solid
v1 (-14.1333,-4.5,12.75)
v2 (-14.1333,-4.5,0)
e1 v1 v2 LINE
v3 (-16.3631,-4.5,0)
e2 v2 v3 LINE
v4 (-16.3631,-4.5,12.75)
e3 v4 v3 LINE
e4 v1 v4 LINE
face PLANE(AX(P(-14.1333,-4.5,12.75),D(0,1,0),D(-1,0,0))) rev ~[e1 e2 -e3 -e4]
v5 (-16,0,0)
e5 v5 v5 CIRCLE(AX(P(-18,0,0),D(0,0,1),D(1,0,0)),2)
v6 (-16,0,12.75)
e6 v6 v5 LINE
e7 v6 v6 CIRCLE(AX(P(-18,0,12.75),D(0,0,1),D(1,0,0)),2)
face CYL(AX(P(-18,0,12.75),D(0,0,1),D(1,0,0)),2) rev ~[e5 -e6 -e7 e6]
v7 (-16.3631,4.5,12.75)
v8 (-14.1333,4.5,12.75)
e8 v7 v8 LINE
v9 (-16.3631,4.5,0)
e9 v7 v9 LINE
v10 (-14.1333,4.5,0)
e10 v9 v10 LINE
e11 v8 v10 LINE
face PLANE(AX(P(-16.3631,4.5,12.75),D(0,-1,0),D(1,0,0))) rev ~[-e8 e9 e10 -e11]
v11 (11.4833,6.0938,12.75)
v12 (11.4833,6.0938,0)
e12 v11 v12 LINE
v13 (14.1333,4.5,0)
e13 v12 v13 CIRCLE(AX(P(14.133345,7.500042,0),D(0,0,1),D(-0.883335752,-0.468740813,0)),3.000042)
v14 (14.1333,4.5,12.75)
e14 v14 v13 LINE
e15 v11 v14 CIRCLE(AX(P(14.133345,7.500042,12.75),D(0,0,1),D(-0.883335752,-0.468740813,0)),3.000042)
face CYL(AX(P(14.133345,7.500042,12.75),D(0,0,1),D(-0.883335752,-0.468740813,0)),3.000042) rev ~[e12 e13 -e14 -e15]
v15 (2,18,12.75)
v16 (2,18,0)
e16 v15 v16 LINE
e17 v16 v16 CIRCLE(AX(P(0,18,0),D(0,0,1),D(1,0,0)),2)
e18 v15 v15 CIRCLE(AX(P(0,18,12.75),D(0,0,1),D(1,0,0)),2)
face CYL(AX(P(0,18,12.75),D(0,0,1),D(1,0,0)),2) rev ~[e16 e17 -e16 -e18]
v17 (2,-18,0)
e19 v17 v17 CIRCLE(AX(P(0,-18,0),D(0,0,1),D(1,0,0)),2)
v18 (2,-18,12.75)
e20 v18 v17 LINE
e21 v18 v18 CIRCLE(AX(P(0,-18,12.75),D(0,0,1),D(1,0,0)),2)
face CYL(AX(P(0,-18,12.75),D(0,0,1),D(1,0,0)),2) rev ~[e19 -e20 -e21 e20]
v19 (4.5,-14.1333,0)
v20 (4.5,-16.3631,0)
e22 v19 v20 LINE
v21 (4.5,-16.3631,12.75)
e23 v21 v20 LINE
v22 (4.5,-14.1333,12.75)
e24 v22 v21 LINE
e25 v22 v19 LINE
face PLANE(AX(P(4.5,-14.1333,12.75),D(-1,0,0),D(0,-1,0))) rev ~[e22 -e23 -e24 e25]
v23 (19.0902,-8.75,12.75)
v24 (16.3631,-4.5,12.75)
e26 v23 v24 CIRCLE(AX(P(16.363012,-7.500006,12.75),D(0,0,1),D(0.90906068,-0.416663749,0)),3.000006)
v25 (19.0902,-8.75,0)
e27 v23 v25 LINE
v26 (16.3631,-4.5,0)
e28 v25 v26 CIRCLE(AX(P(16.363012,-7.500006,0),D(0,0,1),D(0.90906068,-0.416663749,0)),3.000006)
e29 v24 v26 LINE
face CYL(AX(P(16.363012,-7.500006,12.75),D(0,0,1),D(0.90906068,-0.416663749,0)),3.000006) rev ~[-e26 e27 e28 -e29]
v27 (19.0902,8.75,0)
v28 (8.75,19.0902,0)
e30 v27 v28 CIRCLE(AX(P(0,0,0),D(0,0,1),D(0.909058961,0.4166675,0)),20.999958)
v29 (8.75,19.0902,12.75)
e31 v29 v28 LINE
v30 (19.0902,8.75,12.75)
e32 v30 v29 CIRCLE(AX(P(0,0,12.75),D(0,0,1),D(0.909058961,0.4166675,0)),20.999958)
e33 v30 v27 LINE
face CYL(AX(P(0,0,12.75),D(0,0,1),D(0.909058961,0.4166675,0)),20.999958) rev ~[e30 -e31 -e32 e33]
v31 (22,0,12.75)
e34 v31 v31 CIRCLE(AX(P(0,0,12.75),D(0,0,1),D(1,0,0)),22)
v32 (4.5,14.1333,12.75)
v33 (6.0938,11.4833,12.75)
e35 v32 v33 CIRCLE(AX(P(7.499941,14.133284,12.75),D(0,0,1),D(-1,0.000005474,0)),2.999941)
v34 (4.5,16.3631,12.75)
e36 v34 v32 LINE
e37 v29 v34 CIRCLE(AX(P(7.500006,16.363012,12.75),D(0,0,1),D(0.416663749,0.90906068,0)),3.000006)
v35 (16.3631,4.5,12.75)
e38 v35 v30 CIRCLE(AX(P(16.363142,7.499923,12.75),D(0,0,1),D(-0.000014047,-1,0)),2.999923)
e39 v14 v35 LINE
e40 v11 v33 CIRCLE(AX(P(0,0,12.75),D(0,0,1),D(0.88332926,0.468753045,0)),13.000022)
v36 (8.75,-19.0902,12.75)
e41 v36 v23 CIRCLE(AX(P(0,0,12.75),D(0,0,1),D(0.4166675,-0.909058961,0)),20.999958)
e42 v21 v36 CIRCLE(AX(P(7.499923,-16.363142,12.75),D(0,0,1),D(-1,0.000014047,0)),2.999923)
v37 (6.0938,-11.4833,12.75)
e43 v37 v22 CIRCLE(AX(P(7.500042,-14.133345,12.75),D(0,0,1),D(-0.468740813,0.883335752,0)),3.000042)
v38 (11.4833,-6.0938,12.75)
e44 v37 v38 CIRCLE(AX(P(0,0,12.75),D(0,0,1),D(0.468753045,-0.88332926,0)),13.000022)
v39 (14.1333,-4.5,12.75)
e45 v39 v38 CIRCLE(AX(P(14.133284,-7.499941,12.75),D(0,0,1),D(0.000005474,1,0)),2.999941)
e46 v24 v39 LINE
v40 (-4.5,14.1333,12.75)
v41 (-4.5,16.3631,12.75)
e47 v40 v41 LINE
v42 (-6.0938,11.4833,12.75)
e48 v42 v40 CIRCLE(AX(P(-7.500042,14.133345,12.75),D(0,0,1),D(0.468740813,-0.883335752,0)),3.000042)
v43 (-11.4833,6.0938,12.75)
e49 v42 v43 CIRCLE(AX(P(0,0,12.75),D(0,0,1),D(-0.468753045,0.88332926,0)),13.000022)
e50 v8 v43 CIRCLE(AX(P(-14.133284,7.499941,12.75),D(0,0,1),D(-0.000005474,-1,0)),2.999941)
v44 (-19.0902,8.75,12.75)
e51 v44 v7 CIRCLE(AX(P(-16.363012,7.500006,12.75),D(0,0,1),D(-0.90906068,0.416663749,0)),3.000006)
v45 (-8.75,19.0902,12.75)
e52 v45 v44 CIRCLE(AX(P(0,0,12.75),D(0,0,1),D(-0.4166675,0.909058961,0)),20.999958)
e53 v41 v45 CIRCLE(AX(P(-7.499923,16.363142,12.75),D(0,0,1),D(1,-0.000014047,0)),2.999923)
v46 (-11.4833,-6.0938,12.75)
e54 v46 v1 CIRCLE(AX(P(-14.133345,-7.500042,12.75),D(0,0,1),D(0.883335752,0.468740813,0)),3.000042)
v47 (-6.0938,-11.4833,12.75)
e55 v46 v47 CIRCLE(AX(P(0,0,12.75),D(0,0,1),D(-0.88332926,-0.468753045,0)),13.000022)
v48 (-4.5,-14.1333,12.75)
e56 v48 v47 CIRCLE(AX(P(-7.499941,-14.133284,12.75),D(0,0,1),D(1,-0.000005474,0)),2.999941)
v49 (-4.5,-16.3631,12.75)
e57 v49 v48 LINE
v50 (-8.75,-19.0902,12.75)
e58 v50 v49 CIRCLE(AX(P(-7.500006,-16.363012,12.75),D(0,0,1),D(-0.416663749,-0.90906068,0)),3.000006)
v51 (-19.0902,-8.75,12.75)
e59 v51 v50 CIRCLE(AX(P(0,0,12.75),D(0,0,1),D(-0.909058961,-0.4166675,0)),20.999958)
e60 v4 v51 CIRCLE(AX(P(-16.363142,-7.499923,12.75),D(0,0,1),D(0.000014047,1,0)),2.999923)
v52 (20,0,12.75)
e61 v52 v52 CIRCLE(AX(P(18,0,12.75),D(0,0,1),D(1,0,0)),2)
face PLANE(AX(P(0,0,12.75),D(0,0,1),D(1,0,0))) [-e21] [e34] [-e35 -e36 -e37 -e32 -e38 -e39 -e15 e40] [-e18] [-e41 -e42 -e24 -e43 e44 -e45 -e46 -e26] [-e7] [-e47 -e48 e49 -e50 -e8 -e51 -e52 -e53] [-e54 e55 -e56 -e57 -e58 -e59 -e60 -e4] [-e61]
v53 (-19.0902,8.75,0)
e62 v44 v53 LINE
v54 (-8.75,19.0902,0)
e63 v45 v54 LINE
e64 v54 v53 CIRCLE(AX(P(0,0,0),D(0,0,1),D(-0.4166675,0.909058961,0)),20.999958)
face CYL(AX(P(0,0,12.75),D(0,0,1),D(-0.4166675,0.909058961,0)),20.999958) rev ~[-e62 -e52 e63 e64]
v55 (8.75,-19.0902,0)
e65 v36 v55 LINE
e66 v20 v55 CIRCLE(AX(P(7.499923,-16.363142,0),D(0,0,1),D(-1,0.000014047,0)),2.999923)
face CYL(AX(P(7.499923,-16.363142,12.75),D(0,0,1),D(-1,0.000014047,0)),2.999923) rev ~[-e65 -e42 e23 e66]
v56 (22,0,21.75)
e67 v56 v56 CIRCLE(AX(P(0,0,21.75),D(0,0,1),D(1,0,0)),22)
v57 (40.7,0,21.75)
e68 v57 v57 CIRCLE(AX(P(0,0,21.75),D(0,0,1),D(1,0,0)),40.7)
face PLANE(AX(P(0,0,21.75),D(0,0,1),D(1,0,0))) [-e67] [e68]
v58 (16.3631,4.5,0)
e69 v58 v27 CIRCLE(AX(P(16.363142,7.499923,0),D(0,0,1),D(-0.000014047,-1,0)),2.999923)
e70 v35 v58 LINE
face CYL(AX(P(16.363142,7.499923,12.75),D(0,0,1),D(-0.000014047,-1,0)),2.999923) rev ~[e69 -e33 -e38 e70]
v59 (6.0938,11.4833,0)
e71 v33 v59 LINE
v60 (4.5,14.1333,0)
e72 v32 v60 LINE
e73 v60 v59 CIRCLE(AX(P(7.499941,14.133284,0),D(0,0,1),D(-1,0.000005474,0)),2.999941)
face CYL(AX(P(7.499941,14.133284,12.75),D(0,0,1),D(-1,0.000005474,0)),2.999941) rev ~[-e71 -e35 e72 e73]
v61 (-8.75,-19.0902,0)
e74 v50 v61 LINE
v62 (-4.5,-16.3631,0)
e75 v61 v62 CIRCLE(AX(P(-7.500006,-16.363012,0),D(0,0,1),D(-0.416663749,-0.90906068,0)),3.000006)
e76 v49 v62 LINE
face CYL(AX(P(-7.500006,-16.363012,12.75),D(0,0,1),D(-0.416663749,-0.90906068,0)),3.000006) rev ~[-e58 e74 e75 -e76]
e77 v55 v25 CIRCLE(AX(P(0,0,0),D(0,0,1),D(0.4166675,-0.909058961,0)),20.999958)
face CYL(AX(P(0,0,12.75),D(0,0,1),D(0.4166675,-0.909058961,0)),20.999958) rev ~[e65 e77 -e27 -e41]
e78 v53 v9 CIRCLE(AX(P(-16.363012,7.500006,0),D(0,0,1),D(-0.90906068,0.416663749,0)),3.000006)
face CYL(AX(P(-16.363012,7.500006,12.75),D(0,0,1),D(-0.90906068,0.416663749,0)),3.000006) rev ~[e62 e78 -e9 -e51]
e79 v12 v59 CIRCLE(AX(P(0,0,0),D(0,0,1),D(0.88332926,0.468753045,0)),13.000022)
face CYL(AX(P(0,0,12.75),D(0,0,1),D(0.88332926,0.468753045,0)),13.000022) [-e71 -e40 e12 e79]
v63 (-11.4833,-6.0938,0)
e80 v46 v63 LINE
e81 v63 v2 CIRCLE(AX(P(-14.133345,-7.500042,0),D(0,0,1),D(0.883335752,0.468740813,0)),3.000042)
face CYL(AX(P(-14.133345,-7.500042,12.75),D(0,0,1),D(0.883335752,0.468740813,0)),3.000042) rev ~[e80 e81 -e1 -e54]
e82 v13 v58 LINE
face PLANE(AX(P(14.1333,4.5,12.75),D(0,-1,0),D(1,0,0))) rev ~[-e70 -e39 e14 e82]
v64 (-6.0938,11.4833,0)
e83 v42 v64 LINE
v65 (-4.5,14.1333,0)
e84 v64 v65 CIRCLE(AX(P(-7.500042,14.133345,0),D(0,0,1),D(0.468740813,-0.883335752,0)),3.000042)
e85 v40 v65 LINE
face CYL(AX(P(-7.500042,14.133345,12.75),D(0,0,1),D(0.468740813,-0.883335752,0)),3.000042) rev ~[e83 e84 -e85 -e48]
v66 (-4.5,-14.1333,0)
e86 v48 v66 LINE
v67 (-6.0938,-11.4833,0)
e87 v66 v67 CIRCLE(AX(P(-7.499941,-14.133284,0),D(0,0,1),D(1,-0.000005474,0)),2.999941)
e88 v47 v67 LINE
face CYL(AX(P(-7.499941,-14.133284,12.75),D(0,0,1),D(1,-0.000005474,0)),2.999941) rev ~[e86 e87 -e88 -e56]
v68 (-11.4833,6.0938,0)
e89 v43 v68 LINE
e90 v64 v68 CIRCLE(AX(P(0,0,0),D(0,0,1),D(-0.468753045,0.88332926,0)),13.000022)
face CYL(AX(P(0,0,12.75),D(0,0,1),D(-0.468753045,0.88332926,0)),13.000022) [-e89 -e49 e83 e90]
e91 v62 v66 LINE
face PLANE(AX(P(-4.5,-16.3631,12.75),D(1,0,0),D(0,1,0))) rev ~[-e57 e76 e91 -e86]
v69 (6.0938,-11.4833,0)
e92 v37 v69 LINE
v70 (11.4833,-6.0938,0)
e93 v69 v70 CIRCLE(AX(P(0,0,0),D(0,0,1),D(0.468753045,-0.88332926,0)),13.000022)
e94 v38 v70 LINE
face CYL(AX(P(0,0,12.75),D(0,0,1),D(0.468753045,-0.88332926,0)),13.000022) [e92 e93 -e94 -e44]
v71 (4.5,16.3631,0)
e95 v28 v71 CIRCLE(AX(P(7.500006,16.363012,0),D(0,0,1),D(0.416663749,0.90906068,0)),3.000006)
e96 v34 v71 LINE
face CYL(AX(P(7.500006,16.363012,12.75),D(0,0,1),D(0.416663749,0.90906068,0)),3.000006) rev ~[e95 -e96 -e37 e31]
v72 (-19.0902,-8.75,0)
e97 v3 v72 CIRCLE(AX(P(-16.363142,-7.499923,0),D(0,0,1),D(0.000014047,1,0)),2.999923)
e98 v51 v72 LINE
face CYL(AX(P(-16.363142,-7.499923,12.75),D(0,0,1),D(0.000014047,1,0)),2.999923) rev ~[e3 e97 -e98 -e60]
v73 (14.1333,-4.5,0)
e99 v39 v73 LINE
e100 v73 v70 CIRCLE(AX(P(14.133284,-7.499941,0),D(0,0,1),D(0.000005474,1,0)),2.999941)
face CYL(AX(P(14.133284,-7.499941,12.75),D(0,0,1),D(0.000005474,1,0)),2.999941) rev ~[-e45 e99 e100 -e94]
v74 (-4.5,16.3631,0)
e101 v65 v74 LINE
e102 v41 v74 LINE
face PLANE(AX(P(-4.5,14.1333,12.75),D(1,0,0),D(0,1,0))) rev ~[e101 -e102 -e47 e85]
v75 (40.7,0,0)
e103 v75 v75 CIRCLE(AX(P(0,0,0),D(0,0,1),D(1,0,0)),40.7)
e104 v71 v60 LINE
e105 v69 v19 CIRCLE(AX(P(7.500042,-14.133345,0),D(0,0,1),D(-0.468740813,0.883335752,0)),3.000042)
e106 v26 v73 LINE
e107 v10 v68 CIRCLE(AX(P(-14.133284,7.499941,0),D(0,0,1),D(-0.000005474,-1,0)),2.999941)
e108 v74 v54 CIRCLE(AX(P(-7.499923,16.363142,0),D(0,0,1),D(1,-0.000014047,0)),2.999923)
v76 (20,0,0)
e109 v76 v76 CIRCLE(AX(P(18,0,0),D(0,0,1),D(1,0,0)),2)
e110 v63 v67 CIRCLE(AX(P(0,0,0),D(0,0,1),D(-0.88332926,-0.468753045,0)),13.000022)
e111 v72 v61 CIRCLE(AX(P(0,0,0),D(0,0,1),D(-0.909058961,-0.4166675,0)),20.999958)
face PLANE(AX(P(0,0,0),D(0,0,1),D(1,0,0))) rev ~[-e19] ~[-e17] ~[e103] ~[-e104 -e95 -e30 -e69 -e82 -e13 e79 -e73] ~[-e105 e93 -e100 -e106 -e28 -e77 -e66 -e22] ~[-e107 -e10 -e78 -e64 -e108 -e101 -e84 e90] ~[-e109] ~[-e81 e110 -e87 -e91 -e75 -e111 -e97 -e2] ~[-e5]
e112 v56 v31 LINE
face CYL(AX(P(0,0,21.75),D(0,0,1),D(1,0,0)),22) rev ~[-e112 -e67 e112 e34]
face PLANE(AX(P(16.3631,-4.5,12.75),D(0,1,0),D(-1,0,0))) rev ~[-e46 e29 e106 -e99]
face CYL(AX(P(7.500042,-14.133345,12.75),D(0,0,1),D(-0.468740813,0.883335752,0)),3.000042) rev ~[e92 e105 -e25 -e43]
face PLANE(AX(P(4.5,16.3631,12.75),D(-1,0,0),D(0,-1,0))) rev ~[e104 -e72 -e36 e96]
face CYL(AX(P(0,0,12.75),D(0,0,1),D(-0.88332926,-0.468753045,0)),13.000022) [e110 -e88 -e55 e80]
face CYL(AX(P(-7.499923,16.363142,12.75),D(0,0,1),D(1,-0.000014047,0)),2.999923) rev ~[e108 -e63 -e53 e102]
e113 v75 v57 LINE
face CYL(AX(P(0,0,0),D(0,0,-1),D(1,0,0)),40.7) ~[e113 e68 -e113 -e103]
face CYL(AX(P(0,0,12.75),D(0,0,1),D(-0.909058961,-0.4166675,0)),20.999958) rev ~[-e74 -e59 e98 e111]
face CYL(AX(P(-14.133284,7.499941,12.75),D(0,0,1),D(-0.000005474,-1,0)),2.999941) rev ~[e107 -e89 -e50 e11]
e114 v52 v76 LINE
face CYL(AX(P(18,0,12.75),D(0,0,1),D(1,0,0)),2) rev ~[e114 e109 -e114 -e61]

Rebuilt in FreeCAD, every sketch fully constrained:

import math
import FreeCAD as App
import Part
import Sketcher
from FreeCAD import Vector

doc = App.newDocument("Part")
body = doc.addObject("PartDesign::Body", "Body")

# Sketch on XY plane
sketch1 = body.newObject("Sketcher::SketchObject", "Sketch")
sketch1.AttachmentSupport = (doc.getObject("XY_Plane"), [""])
sketch1.MapMode = "FlatFace"
sketch1.addGeometry(Part.Circle(Vector(0, 0, 0), Vector(0, 0, 1), 40.7), False)
sketch1.addConstraint([
    Sketcher.Constraint("Coincident", 0, 3, -1, 1),
    Sketcher.Constraint("Diameter", 0, 81.4),
])
pad1 = body.newObject("PartDesign::Pad", "Pad")
pad1.Profile = sketch1
pad1.Length = 21.75

# Sketch on XY plane
sketch2 = body.newObject("Sketcher::SketchObject", "Sketch001")
sketch2.AttachmentSupport = (doc.getObject("XY_Plane"), [""])
sketch2.MapMode = "FlatFace"
sketch2.AttachmentOffset = App.Placement(Vector(0, 0, 21.75), App.Rotation())
sketch2.addGeometry(Part.Circle(Vector(0, 0, 0), Vector(0, 0, 1), 22), False)
sketch2.addConstraint([
    Sketcher.Constraint("Coincident", 0, 3, -1, 1),
    Sketcher.Constraint("Diameter", 0, 44.0),
])
pocket1 = body.newObject("PartDesign::Pocket", "Pocket")
pocket1.Profile = sketch2
pocket1.Length = 9

# Sketch on XY plane
sketch3 = body.newObject("Sketcher::SketchObject", "Sketch002")
sketch3.AttachmentSupport = (doc.getObject("XY_Plane"), [""])
sketch3.MapMode = "FlatFace"
sketch3.AttachmentOffset = App.Placement(Vector(0, 0, 12.75), App.Rotation())
sketch3.addGeometry([
    Part.Circle(Vector(0, 18, 0), Vector(0, 0, 1), 2),
    Part.Circle(Vector(-18, 0, 0), Vector(0, 0, 1), 2),
    Part.Circle(Vector(0, -18, 0), Vector(0, 0, 1), 2),
    Part.Circle(Vector(18, 0, 0), Vector(0, 0, 1), 2),
], False)
sketch3.addConstraint([
    Sketcher.Constraint("Equal", 0, 1),
    Sketcher.Constraint("Equal", 1, 2),
    Sketcher.Constraint("Equal", 2, 3),
    Sketcher.Constraint("Symmetric", 0, 3, 2, 3, -1, 1),
    Sketcher.Constraint("Symmetric", 1, 3, 3, 3, -1, 1),
    Sketcher.Constraint("PointOnObject", 0, 3, -2),
    Sketcher.Constraint("PointOnObject", 1, 3, -1),
    Sketcher.Constraint("Diameter", 0, 4.0),
    Sketcher.Constraint("DistanceY", -1, 1, 0, 3, 18.0),
    Sketcher.Constraint("DistanceX", 1, 3, -1, 1, 18.0),
])
pocket2 = body.newObject("PartDesign::Pocket", "Pocket001")
pocket2.Profile = sketch3
pocket2.Length = 12.75

# Sketch on XY plane
sketch4 = body.newObject("Sketcher::SketchObject", "Sketch003")
sketch4.AttachmentSupport = (doc.getObject("XY_Plane"), [""])
sketch4.MapMode = "FlatFace"
sketch4.AttachmentOffset = App.Placement(Vector(0, 0, 12.75), App.Rotation())
sketch4.addGeometry([
    Part.LineSegment(Vector(-16.3631, 4.5, 0), Vector(-14.1333, 4.5, 0)),  # 0
    Part.ArcOfCircle(Part.Circle(Vector(-14.1333, 7.5, 0), Vector(0, 0, 1), 3), math.radians(-90), math.radians(-27.952277)),  # 1
    Part.ArcOfCircle(Part.Circle(Vector(0, 0, 0), Vector(0, 0, 1), 13.000022), math.radians(117.953384), math.radians(152.046616)),  # 2
    Part.ArcOfCircle(Part.Circle(Vector(-7.5, 14.1333, 0), Vector(0, 0, 1), 2.999983), math.radians(-62.047723), math.radians(0)),  # 3
    Part.LineSegment(Vector(-4.5, 14.1333, 0), Vector(-4.5, 16.3631, 0)),  # 4
    Part.ArcOfCircle(Part.Circle(Vector(-7.5, 16.3631, 0), Vector(0, 0, 1), 3), math.radians(0), math.radians(114.624939)),  # 5
    Part.ArcOfCircle(Part.Circle(Vector(0, 0, 0), Vector(0, 0, 1), 20.999958), math.radians(114.624371), math.radians(155.375629)),  # 6
    Part.ArcOfCircle(Part.Circle(Vector(-16.3631, 7.5, 0), Vector(0, 0, 1), 2.999929), math.radians(155.375061), math.radians(270)),  # 7
    Part.ArcOfCircle(Part.Circle(Vector(0, 0, 0), Vector(0, 0, 1), 13.000022), math.radians(-152.046616), math.radians(-117.953384)),  # 8
    Part.ArcOfCircle(Part.Circle(Vector(-14.1333, -7.5, 0), Vector(0, 0, 1), 2.999983), math.radians(27.952277), math.radians(90)),  # 9
    Part.LineSegment(Vector(-14.1333, -4.5, 0), Vector(-16.3631, -4.5, 0)),  # 10
    Part.ArcOfCircle(Part.Circle(Vector(-16.3631, -7.5, 0), Vector(0, 0, 1), 3), math.radians(90), math.radians(204.624939)),  # 11
    Part.ArcOfCircle(Part.Circle(Vector(0, 0, 0), Vector(0, 0, 1), 20.999958), math.radians(-155.375629), math.radians(-114.624371)),  # 12
    Part.ArcOfCircle(Part.Circle(Vector(-7.5, -16.3631, 0), Vector(0, 0, 1), 2.999929), math.radians(-114.624939), math.radians(0)),  # 13
    Part.LineSegment(Vector(-4.5, -16.3631, 0), Vector(-4.5, -14.1333, 0)),  # 14
    Part.ArcOfCircle(Part.Circle(Vector(-7.5, -14.1333, 0), Vector(0, 0, 1), 3), math.radians(0), math.radians(62.047723)),  # 15
    Part.ArcOfCircle(Part.Circle(Vector(0, 0, 0), Vector(0, 0, 1), 13.000022), math.radians(-62.046616), math.radians(-27.953384)),  # 16
    Part.ArcOfCircle(Part.Circle(Vector(7.5, -14.1333, 0), Vector(0, 0, 1), 2.999983), math.radians(117.952277), math.radians(180)),  # 17
    Part.LineSegment(Vector(4.5, -14.1333, 0), Vector(4.5, -16.3631, 0)),  # 18
    Part.ArcOfCircle(Part.Circle(Vector(7.5, -16.3631, 0), Vector(0, 0, 1), 3), math.radians(180), math.radians(294.624939)),  # 19
    Part.ArcOfCircle(Part.Circle(Vector(0, 0, 0), Vector(0, 0, 1), 20.999958), math.radians(-65.375629), math.radians(-24.624371)),  # 20
    Part.ArcOfCircle(Part.Circle(Vector(16.3631, -7.5, 0), Vector(0, 0, 1), 2.999929), math.radians(-24.624939), math.radians(90)),  # 21
    Part.LineSegment(Vector(16.3631, -4.5, 0), Vector(14.1333, -4.5, 0)),  # 22
    Part.ArcOfCircle(Part.Circle(Vector(14.1333, -7.5, 0), Vector(0, 0, 1), 3), math.radians(90), math.radians(152.047723)),  # 23
    Part.ArcOfCircle(Part.Circle(Vector(0, 0, 0), Vector(0, 0, 1), 13.000022), math.radians(27.953384), math.radians(62.046616)),  # 24
    Part.ArcOfCircle(Part.Circle(Vector(14.1333, 7.5, 0), Vector(0, 0, 1), 2.999983), math.radians(-152.047723), math.radians(-90)),  # 25
    Part.LineSegment(Vector(14.1333, 4.5, 0), Vector(16.3631, 4.5, 0)),  # 26
    Part.ArcOfCircle(Part.Circle(Vector(16.3631, 7.5, 0), Vector(0, 0, 1), 3), math.radians(-90), math.radians(24.624939)),  # 27
    Part.ArcOfCircle(Part.Circle(Vector(0, 0, 0), Vector(0, 0, 1), 20.999958), math.radians(24.624371), math.radians(65.375629)),  # 28
    Part.ArcOfCircle(Part.Circle(Vector(7.5, 16.3631, 0), Vector(0, 0, 1), 2.999929), math.radians(65.375061), math.radians(180)),  # 29
    Part.LineSegment(Vector(4.5, 16.3631, 0), Vector(4.5, 14.1333, 0)),  # 30
    Part.ArcOfCircle(Part.Circle(Vector(7.5, 14.1333, 0), Vector(0, 0, 1), 3), math.radians(180), math.radians(242.047723)),  # 31
], False)
sketch4.addConstraint([
    Sketcher.Constraint("Tangent", 0, 2, 1, 1),
    Sketcher.Constraint("Tangent", 1, 2, 2, 2),
    Sketcher.Constraint("Tangent", 2, 1, 3, 1),
    Sketcher.Constraint("Tangent", 3, 2, 4, 1),
    Sketcher.Constraint("Tangent", 4, 2, 5, 1),
    Sketcher.Constraint("Tangent", 5, 2, 6, 1),
    Sketcher.Constraint("Tangent", 6, 2, 7, 1),
    Sketcher.Constraint("Tangent", 7, 2, 0, 1),
    Sketcher.Constraint("Tangent", 8, 1, 9, 1),
    Sketcher.Constraint("Tangent", 9, 2, 10, 1),
    Sketcher.Constraint("Tangent", 10, 2, 11, 1),
    Sketcher.Constraint("Tangent", 11, 2, 12, 1),
    Sketcher.Constraint("Tangent", 12, 2, 13, 1),
    Sketcher.Constraint("Tangent", 13, 2, 14, 1),
    Sketcher.Constraint("Tangent", 14, 2, 15, 1),
    Sketcher.Constraint("Tangent", 15, 2, 8, 2),
    Sketcher.Constraint("Tangent", 16, 1, 17, 1),
    Sketcher.Constraint("Tangent", 17, 2, 18, 1),
    Sketcher.Constraint("Tangent", 18, 2, 19, 1),
    Sketcher.Constraint("Tangent", 19, 2, 20, 1),
    Sketcher.Constraint("Tangent", 20, 2, 21, 1),
    Sketcher.Constraint("Tangent", 21, 2, 22, 1),
    Sketcher.Constraint("Tangent", 22, 2, 23, 1),
    Sketcher.Constraint("Tangent", 23, 2, 16, 2),
    Sketcher.Constraint("Tangent", 24, 1, 25, 1),
    Sketcher.Constraint("Tangent", 25, 2, 26, 1),
    Sketcher.Constraint("Tangent", 26, 2, 27, 1),
    Sketcher.Constraint("Tangent", 27, 2, 28, 1),
    Sketcher.Constraint("Tangent", 28, 2, 29, 1),
    Sketcher.Constraint("Tangent", 29, 2, 30, 1),
    Sketcher.Constraint("Tangent", 30, 2, 31, 1),
    Sketcher.Constraint("Tangent", 31, 2, 24, 2),
    Sketcher.Constraint("Horizontal", 0),
    Sketcher.Constraint("Vertical", 4),
    Sketcher.Constraint("Horizontal", 10),
    Sketcher.Constraint("Vertical", 14),
    Sketcher.Constraint("Vertical", 18),
    Sketcher.Constraint("Horizontal", 22),
    Sketcher.Constraint("Horizontal", 26),
    Sketcher.Constraint("Vertical", 30),
    Sketcher.Constraint("Coincident", 2, 3, -1, 1),
    Sketcher.Constraint("Coincident", 6, 3, -1, 1),
    Sketcher.Constraint("Coincident", 8, 3, -1, 1),
    Sketcher.Constraint("Coincident", 12, 3, -1, 1),
    Sketcher.Constraint("Coincident", 16, 3, -1, 1),
    Sketcher.Constraint("Coincident", 20, 3, -1, 1),
    Sketcher.Constraint("Coincident", 24, 3, -1, 1),
    Sketcher.Constraint("Coincident", 28, 3, -1, 1),
    Sketcher.Constraint("Equal", 1, 3),
    Sketcher.Constraint("Equal", 3, 5),
    Sketcher.Constraint("Equal", 5, 7),
    Sketcher.Constraint("Equal", 2, 8),
    Sketcher.Constraint("Equal", 7, 9),
    Sketcher.Constraint("Equal", 9, 11),
    Sketcher.Constraint("Equal", 6, 12),
    Sketcher.Constraint("Equal", 11, 13),
    Sketcher.Constraint("Equal", 13, 15),
    Sketcher.Constraint("Equal", 8, 16),
    Sketcher.Constraint("Equal", 15, 17),
    Sketcher.Constraint("Equal", 17, 19),
    Sketcher.Constraint("Equal", 12, 20),
    Sketcher.Constraint("Equal", 19, 21),
    Sketcher.Constraint("Equal", 21, 23),
    Sketcher.Constraint("Equal", 16, 24),
    Sketcher.Constraint("Equal", 23, 25),
    Sketcher.Constraint("Equal", 25, 27),
    Sketcher.Constraint("Equal", 20, 28),
    Sketcher.Constraint("Equal", 27, 29),
    Sketcher.Constraint("Equal", 29, 31),
    Sketcher.Constraint("Horizontal", 15, 3, 17, 3),
    Sketcher.Constraint("Horizontal", 11, 3, 21, 3),
    Sketcher.Constraint("Horizontal", 7, 3, 25, 3),
    Sketcher.Constraint("Horizontal", 5, 3, 29, 3),
    Sketcher.Constraint("Vertical", 1, 3, 9, 3),
    Sketcher.Constraint("Vertical", 5, 3, 13, 3),
    Sketcher.Constraint("Equal", 26, 4),
    Sketcher.Constraint("Radius", 1, 3.0),
    Sketcher.Constraint("Radius", 2, 13.0),
    Sketcher.Constraint("Radius", 6, 21.0),
    Sketcher.Constraint("DistanceY", 9, 3, 1, 3, 15.0),
])
pocket3 = body.newObject("PartDesign::Pocket", "Pocket002")
pocket3.Profile = sketch4
pocket3.Length = 12.75

doc.recompute()
